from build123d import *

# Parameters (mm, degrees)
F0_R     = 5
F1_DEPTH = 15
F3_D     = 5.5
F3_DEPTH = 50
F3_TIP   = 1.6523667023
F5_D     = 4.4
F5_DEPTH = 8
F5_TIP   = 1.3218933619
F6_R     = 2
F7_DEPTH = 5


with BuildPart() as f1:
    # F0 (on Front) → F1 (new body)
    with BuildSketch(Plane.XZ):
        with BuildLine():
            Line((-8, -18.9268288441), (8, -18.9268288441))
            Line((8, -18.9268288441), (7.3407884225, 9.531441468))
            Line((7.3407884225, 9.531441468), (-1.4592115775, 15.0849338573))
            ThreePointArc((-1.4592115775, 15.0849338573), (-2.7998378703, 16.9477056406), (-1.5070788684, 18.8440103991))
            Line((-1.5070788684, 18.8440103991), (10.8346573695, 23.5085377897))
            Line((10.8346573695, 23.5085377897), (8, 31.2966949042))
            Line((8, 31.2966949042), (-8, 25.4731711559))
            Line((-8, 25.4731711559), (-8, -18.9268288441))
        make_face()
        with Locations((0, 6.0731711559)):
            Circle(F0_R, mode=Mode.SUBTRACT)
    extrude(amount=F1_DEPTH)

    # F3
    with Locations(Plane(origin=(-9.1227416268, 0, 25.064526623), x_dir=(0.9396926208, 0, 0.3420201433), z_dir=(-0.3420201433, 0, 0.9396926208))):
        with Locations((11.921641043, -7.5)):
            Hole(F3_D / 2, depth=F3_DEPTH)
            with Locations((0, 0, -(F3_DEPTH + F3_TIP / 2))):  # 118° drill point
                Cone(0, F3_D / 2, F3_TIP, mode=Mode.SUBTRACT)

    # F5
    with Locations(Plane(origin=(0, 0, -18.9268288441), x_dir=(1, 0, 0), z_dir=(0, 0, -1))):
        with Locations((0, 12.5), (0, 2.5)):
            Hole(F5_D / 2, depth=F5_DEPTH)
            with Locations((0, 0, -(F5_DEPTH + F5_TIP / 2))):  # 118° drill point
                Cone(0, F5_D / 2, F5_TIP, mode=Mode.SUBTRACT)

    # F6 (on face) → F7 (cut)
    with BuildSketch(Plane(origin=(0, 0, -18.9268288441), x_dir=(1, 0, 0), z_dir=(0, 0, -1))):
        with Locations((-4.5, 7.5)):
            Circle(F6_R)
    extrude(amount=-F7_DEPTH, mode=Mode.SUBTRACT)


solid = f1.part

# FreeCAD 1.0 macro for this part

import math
import FreeCAD as App
import Part
import Sketcher
Q = App.Units.Quantity

doc = App.newDocument("Part")
body = doc.addObject("PartDesign::Body", "Body")

sketch1 = doc.addObject("Sketcher::SketchObject", "Sketch")
body.addObject(sketch1)
sketch1.AttachmentSupport = (doc.XZ_Plane, [""])
sketch1.MapMode = "FlatFace"
sketch1.addGeometry([
    Part.LineSegment(App.Vector(-8, -18.926829, 0), App.Vector(8, -18.926829, 0)),
    Part.LineSegment(App.Vector(8, -18.926829, 0), App.Vector(7.340788, 9.531441, 0)),
    Part.LineSegment(App.Vector(7.340788, 9.531441, 0), App.Vector(-1.459212, 15.084934, 0)),
    Part.ArcOfCircle(Part.Circle(App.Vector(-0.8, 16.973171, 0), App.Vector(0, 0, 1), 2), math.radians(110.703956), math.radians(250.75515)),
    Part.LineSegment(App.Vector(-1.507079, 18.84401, 0), App.Vector(10.834657, 23.508538, 0)),
    Part.LineSegment(App.Vector(10.834657, 23.508538, 0), App.Vector(8, 31.296695, 0)),
    Part.LineSegment(App.Vector(8, 31.296695, 0), App.Vector(-8, 25.473171, 0)),
    Part.LineSegment(App.Vector(-8, 25.473171, 0), App.Vector(-8, -18.926829, 0)),
    Part.Circle(App.Vector(0, 6.073171, 0), App.Vector(0, 0, 1), 5),
], False)
sketch1.addConstraint([
    Sketcher.Constraint("Coincident", 0, 2, 1, 1),
    Sketcher.Constraint("Coincident", 1, 2, 2, 1),
    Sketcher.Constraint("Coincident", 2, 2, 3, 2),
    Sketcher.Constraint("Tangent", 3, 1, 4, 1),
    Sketcher.Constraint("Coincident", 4, 2, 5, 1),
    Sketcher.Constraint("Coincident", 5, 2, 6, 1),
    Sketcher.Constraint("Coincident", 6, 2, 7, 1),
    Sketcher.Constraint("Coincident", 7, 2, 0, 1),
    Sketcher.Constraint("Horizontal", 0),
    Sketcher.Constraint("Vertical", 7),
    Sketcher.Constraint("PointOnObject", 8, 3, -2),
    Sketcher.Constraint("Perpendicular", 5, 6),
    Sketcher.Constraint("Vertical", 0, 2, 5, 2),
    Sketcher.Constraint("Diameter", 8, Q("10 mm")),
    Sketcher.Constraint("Radius", 3, Q("2 mm")),
    Sketcher.Constraint("DistanceX", 0, 1, 0, 2, Q("16 mm")),
    Sketcher.Constraint("Angle", 5, Q("110 deg")),
    Sketcher.Constraint("DistanceY", 7, 2, 7, 1, Q("44.4 mm")),
    Sketcher.Constraint("DistanceX", -1, 1, 0, 2, Q("8 mm")),
    Sketcher.Constraint("DistanceY", 0, 2, 8, 3, Q("25 mm")),
    Sketcher.Constraint("DistanceX", 3, 3, -1, 1, Q("0.8 mm")),
    Sketcher.Constraint("DistanceY", 8, 3, 3, 3, Q("10.9 mm")),
    Sketcher.Constraint("DistanceX", 2, 2, 1, 2, Q("8.8 mm")),
    Sketcher.Constraint("Distance", 2, Q("10.405829 mm")),
    Sketcher.Constraint("DistanceY", -1, 1, 3, 3, Q("16.973171 mm")),
    Sketcher.Constraint("DistanceX", -1, 1, 1, 2, Q("7.340788 mm")),
    Sketcher.Constraint("DistanceX", 3, 1, -1, 1, Q("1.507079 mm")),
])
pad1 = doc.addObject("PartDesign::Pad", "Pad")
body.addObject(pad1)
pad1.Profile = sketch1
pad1.Length = 15

sketch2 = doc.addObject("Sketcher::SketchObject", "Sketch001")
body.addObject(sketch2)
sketch2.Placement = App.Placement(App.Vector(-9.122742, 0, 25.064527), App.Rotation(App.Vector(0.939692621, 0, 0.342020143), App.Vector(0, 1, 0), App.Vector(-0.342020143, 0, 0.939692621), "ZXY"))
sketch2.addGeometry(Part.Circle(App.Vector(11.921641, -7.5, 0), App.Vector(0, 0, 1), 2.75), False)
sketch2.addConstraint([
    Sketcher.Constraint("Diameter", 0, Q("5.5 mm")),
    Sketcher.Constraint("DistanceY", 0, 3, -1, 1, Q("7.5 mm")),
    Sketcher.Constraint("DistanceX", -1, 1, 0, 3, Q("11.921641 mm")),
])
doc.recompute()
hole = doc.addObject("PartDesign::Hole", "Hole")
body.addObject(hole)
hole.Profile = sketch2
hole.ThreadType = "None"
hole.Diameter = 5.5
hole.DepthType = "Dimension"
hole.Depth = 50
hole.DrillPoint = "Angled"
hole.DrillPointAngle = 118

sketch3 = doc.addObject("Sketcher::SketchObject", "Sketch002")
body.addObject(sketch3)
sketch3.AttachmentSupport = (doc.XY_Plane, [""])
sketch3.MapMode = "FlatFace"
sketch3.AttachmentOffset = App.Placement(App.Vector(0, 0, -18.926829), App.Rotation())
sketch3.addGeometry([
    Part.Circle(App.Vector(0, -12.5, 0), App.Vector(0, 0, 1), 2.2),
    Part.Circle(App.Vector(0, -2.5, 0), App.Vector(0, 0, 1), 2.2),
], False)
sketch3.addConstraint([
    Sketcher.Constraint("Equal", 0, 1),
    Sketcher.Constraint("PointOnObject", 0, 3, -2),
    Sketcher.Constraint("PointOnObject", 1, 3, -2),
    Sketcher.Constraint("Diameter", 0, Q("4.4 mm")),
    Sketcher.Constraint("DistanceY", 0, 3, 1, 3, Q("10 mm")),
    Sketcher.Constraint("DistanceY", 0, 3, -1, 1, Q("12.5 mm")),
])
doc.recompute()
hole2 = doc.addObject("PartDesign::Hole", "Hole001")
body.addObject(hole2)
hole2.Profile = sketch3
hole2.ThreadType = "None"
hole2.Diameter = 4.4
hole2.DepthType = "Dimension"
hole2.Depth = 8
hole2.DrillPoint = "Angled"
hole2.DrillPointAngle = 118
hole2.Reversed = True

sketch4 = doc.addObject("Sketcher::SketchObject", "Sketch003")
body.addObject(sketch4)
sketch4.AttachmentSupport = (doc.XY_Plane, [""])
sketch4.MapMode = "FlatFace"
sketch4.AttachmentOffset = App.Placement(App.Vector(0, 0, -18.926829), App.Rotation())
sketch4.addGeometry(Part.Circle(App.Vector(-4.5, -7.5, 0), App.Vector(0, 0, 1), 2), False)
sketch4.addConstraint([
    Sketcher.Constraint("Diameter", 0, Q("4 mm")),
    Sketcher.Constraint("DistanceX", 0, 3, -1, 1, Q("4.5 mm")),
    Sketcher.Constraint("DistanceY", 0, 3, -1, 1, Q("7.5 mm")),
])
pocket1 = doc.addObject("PartDesign::Pocket", "Pocket")
body.addObject(pocket1)
pocket1.Profile = sketch4
pocket1.Length = 5
pocket1.Reversed = True

doc.recompute()
